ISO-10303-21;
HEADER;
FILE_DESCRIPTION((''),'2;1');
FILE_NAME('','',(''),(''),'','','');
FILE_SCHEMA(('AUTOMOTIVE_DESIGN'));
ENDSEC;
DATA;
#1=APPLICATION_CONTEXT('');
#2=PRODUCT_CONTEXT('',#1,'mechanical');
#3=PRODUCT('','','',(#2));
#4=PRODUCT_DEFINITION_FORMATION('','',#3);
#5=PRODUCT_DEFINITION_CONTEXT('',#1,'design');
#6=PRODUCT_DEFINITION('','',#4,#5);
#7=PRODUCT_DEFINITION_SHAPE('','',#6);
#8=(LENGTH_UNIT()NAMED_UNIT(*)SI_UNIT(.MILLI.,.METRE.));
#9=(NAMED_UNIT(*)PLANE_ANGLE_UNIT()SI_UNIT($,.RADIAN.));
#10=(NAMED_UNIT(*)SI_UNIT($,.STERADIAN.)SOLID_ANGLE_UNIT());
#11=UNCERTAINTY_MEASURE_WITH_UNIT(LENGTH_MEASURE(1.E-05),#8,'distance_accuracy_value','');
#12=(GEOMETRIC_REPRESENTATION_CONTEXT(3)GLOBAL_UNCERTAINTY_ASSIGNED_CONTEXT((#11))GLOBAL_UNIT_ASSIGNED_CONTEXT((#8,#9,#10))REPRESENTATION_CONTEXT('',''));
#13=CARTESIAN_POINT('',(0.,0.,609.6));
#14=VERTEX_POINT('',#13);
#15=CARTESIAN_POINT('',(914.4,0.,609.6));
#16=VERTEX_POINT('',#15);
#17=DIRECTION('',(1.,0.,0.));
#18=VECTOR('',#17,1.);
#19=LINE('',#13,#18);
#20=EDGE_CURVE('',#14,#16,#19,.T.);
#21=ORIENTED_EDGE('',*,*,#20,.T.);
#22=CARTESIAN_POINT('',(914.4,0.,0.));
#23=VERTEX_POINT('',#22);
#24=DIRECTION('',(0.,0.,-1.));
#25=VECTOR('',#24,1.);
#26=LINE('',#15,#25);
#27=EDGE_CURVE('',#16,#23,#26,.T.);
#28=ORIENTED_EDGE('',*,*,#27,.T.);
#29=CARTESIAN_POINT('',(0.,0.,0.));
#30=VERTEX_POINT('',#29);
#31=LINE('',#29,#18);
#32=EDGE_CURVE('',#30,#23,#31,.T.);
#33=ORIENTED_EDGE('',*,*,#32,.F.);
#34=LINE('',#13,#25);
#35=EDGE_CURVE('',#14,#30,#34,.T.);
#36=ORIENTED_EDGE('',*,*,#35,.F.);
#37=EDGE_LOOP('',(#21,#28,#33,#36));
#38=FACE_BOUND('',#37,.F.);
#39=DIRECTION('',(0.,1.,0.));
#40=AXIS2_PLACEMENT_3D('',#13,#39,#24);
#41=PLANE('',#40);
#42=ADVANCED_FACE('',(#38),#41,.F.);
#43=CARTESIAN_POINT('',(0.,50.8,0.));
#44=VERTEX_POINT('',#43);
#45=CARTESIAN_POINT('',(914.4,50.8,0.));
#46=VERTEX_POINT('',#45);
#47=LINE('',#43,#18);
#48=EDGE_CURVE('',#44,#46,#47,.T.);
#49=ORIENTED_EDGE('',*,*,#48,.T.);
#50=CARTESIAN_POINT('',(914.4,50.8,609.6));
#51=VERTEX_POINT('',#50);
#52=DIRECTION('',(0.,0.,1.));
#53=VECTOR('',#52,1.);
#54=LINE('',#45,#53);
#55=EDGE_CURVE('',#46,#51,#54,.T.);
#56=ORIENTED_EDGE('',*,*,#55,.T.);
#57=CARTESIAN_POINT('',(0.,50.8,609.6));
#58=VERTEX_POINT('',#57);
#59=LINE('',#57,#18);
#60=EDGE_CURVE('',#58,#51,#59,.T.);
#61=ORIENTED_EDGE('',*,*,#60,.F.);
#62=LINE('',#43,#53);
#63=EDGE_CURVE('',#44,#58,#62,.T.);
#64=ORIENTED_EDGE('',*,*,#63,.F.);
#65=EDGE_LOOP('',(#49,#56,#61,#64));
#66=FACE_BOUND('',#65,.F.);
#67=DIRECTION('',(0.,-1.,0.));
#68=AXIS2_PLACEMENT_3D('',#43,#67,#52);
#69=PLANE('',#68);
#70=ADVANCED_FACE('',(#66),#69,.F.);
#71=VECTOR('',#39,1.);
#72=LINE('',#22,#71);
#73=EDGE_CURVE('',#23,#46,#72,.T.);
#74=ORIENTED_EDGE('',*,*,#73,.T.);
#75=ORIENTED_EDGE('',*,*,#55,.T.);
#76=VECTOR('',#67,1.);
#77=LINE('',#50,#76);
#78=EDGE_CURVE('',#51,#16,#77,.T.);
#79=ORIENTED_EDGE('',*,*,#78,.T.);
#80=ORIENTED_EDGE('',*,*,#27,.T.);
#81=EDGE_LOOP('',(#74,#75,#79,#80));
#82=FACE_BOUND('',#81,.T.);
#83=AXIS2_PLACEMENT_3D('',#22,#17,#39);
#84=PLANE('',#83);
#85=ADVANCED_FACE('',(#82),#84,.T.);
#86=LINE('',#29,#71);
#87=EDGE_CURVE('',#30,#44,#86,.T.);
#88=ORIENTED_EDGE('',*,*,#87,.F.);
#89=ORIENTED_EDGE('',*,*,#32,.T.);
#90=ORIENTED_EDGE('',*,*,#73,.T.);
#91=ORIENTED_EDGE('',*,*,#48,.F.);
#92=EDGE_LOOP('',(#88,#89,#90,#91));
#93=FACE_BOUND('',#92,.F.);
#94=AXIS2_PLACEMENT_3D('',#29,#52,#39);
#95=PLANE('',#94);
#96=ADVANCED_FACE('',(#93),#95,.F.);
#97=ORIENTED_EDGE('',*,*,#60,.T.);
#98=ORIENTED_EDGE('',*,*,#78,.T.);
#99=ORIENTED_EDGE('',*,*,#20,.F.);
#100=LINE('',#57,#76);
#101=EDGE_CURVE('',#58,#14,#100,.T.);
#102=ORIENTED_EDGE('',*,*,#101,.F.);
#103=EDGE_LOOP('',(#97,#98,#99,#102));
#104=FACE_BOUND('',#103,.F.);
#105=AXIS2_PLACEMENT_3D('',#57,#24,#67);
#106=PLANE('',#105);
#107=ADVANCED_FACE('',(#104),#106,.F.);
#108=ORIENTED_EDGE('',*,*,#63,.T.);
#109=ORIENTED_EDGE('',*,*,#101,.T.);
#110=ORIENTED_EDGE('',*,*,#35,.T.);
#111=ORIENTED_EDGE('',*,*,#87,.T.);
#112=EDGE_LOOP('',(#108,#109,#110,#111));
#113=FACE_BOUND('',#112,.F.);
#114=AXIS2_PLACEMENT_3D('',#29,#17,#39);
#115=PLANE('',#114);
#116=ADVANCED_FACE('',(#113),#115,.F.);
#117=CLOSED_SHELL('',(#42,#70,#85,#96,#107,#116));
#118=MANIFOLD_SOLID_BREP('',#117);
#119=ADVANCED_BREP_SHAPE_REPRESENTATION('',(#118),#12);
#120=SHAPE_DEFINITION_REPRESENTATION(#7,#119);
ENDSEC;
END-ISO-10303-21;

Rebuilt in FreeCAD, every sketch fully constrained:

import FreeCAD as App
import Part
import Sketcher
Q = App.Units.Quantity

doc = App.newDocument("Part")
body = doc.addObject("PartDesign::Body", "Body")

# Sketch on YZ plane
sketch1 = body.newObject("Sketcher::SketchObject", "Sketch")
sketch1.AttachmentSupport = (doc.getObject("YZ_Plane"), [""])
sketch1.MapMode = "FlatFace"
sketch1.addGeometry(Part.LineSegment(App.Vector(0, 610, 0), App.Vector(0, 0, 0)), False)
sketch1.addGeometry(Part.LineSegment(App.Vector(0, 0, 0), App.Vector(51, 0, 0)), False)
sketch1.addGeometry(Part.LineSegment(App.Vector(51, 0, 0), App.Vector(51, 610, 0)), False)
sketch1.addGeometry(Part.LineSegment(App.Vector(51, 610, 0), App.Vector(0, 610, 0)), False)
sketch1.addConstraint(Sketcher.Constraint("Coincident", 0, 2, 1, 1))
sketch1.addConstraint(Sketcher.Constraint("Coincident", 1, 2, 2, 1))
sketch1.addConstraint(Sketcher.Constraint("Coincident", 2, 2, 3, 1))
sketch1.addConstraint(Sketcher.Constraint("Coincident", 3, 2, 0, 1))
sketch1.addConstraint(Sketcher.Constraint("Vertical", 0))
sketch1.addConstraint(Sketcher.Constraint("Horizontal", 1))
sketch1.addConstraint(Sketcher.Constraint("Vertical", 2))
sketch1.addConstraint(Sketcher.Constraint("Horizontal", 3))
sketch1.addConstraint(Sketcher.Constraint("Coincident", 0, 2, -1, 1))
sketch1.addConstraint(Sketcher.Constraint("DistanceX", 1, 1, 1, 2, Q("2 in")))
sketch1.addConstraint(Sketcher.Constraint("DistanceY", 0, 2, 0, 1, Q("24 in")))
pad1 = body.newObject("PartDesign::Pad", "Pad")
pad1.Profile = sketch1
pad1.Length = Q("36 in")

doc.recompute()
